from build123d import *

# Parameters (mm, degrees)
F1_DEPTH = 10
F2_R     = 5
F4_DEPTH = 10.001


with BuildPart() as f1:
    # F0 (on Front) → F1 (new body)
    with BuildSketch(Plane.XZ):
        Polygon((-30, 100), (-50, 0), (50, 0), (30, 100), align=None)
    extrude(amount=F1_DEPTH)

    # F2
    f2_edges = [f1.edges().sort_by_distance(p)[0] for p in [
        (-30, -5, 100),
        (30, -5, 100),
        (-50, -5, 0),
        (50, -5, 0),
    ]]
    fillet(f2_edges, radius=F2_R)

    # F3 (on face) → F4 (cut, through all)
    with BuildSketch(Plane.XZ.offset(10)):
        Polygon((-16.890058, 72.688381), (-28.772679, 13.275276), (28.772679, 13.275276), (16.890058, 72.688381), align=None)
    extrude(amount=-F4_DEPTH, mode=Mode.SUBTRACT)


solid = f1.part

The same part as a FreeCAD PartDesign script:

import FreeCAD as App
import Part
import Sketcher

V = App.Vector
Q = App.Units.Quantity


def edges_at(feature, points):
    """Names of the edges that pass closest to the given points."""
    edges = feature.Shape.Edges
    near = lambda p: min(range(len(edges)), key=lambda i: edges[i].distToShape(Part.Vertex(*p))[0])
    return sorted({f"Edge{near(p) + 1}" for p in points})

doc = App.newDocument("Part")
params = doc.addObject("Spreadsheet::Sheet", "Params")
for row, (alias, value) in enumerate([
    ("sketch1_width", "100 mm"),
    ("sketch1_width2", "60 mm"),
    ("pad1_length", "10 mm"),
    ("fillet_radius", "5 mm"),
], start=1):
    params.set(f"A{row}", alias)
    params.set(f"B{row}", "=" + value)
    params.setAlias(f"B{row}", alias)

body = doc.addObject("PartDesign::Body", "Body")

sketch1 = body.newObject("Sketcher::SketchObject", "Sketch")
sketch1.AttachmentSupport = (doc.getObject("XZ_Plane"), [""])
sketch1.MapMode = "FlatFace"
sketch1.addGeometry([
    Part.LineSegment(V(-30, 100, 0), V(-50, 0, 0)),
    Part.LineSegment(V(-50, 0, 0), V(50, 0, 0)),
    Part.LineSegment(V(50, 0, 0), V(30, 100, 0)),
    Part.LineSegment(V(30, 100, 0), V(-30, 100, 0)),
], False)
sketch1.addConstraint([
    Sketcher.Constraint("Coincident", 0, 2, 1, 1),
    Sketcher.Constraint("Coincident", 1, 2, 2, 1),
    Sketcher.Constraint("Coincident", 2, 2, 3, 1),
    Sketcher.Constraint("Coincident", 3, 2, 0, 1),
    Sketcher.Constraint("Horizontal", 1),
    Sketcher.Constraint("Horizontal", 3),
    Sketcher.Constraint("Symmetric", 0, 2, 1, 2, -1, 1),
    Sketcher.Constraint("Equal", 0, 2),
    Sketcher.Constraint("DistanceX", 1, 1, 1, 2, Q("100 mm")),
    Sketcher.Constraint("DistanceX", 3, 2, 3, 1, Q("60 mm")),
    Sketcher.Constraint("DistanceY", -1, 1, 2, 2, Q("100 mm")),
])
sketch1.setExpression("Constraints[8]", "Params.sketch1_width")
sketch1.setExpression("Constraints[9]", "Params.sketch1_width2")
pad1 = body.newObject("PartDesign::Pad", "Pad")
pad1.Profile = sketch1
pad1.setExpression("Length", "Params.pad1_length")
doc.recompute()

fillet = body.newObject("PartDesign::Fillet", "Fillet")
fillet.Base = (pad1, edges_at(pad1, [
    (-30, -5, 100),
    (30, -5, 100),
    (-50, -5, 0),
    (50, -5, 0),
]))
fillet.setExpression("Radius", "Params.fillet_radius")

sketch2 = body.newObject("Sketcher::SketchObject", "Sketch001")
sketch2.AttachmentSupport = (doc.getObject("XZ_Plane"), [""])
sketch2.MapMode = "FlatFace"
sketch2.AttachmentOffset = App.Placement(V(0, 0, 10), App.Rotation())
sketch2.addGeometry([
    Part.LineSegment(V(-17, 73, 0), V(-29, 13, 0)),
    Part.LineSegment(V(-29, 13, 0), V(29, 13, 0)),
    Part.LineSegment(V(29, 13, 0), V(17, 73, 0)),
    Part.LineSegment(V(17, 73, 0), V(-17, 73, 0)),
], False)
sketch2.addConstraint([
    Sketcher.Constraint("Coincident", 0, 2, 1, 1),
    Sketcher.Constraint("Coincident", 1, 2, 2, 1),
    Sketcher.Constraint("Coincident", 2, 2, 3, 1),
    Sketcher.Constraint("Coincident", 3, 2, 0, 1),
    Sketcher.Constraint("Horizontal", 1),
    Sketcher.Constraint("Horizontal", 3),
    Sketcher.Constraint("Equal", 0, 2),
    Sketcher.Constraint("DistanceX", 1, 1, 1, 2, Q("57.545358 mm")),
    Sketcher.Constraint("DistanceX", 3, 2, 3, 1, Q("33.780116 mm")),
    Sketcher.Constraint("DistanceX", 0, 2, -1, 1, Q("28.772679 mm")),
    Sketcher.Constraint("DistanceY", -1, 1, 2, 2, Q("72.688381 mm")),
    Sketcher.Constraint("Distance", 0, Q("60.589716 mm")),
])
pocket1 = body.newObject("PartDesign::Pocket", "Pocket")
pocket1.Profile = sketch2
pocket1.Type = "ThroughAll"

doc.recompute()
